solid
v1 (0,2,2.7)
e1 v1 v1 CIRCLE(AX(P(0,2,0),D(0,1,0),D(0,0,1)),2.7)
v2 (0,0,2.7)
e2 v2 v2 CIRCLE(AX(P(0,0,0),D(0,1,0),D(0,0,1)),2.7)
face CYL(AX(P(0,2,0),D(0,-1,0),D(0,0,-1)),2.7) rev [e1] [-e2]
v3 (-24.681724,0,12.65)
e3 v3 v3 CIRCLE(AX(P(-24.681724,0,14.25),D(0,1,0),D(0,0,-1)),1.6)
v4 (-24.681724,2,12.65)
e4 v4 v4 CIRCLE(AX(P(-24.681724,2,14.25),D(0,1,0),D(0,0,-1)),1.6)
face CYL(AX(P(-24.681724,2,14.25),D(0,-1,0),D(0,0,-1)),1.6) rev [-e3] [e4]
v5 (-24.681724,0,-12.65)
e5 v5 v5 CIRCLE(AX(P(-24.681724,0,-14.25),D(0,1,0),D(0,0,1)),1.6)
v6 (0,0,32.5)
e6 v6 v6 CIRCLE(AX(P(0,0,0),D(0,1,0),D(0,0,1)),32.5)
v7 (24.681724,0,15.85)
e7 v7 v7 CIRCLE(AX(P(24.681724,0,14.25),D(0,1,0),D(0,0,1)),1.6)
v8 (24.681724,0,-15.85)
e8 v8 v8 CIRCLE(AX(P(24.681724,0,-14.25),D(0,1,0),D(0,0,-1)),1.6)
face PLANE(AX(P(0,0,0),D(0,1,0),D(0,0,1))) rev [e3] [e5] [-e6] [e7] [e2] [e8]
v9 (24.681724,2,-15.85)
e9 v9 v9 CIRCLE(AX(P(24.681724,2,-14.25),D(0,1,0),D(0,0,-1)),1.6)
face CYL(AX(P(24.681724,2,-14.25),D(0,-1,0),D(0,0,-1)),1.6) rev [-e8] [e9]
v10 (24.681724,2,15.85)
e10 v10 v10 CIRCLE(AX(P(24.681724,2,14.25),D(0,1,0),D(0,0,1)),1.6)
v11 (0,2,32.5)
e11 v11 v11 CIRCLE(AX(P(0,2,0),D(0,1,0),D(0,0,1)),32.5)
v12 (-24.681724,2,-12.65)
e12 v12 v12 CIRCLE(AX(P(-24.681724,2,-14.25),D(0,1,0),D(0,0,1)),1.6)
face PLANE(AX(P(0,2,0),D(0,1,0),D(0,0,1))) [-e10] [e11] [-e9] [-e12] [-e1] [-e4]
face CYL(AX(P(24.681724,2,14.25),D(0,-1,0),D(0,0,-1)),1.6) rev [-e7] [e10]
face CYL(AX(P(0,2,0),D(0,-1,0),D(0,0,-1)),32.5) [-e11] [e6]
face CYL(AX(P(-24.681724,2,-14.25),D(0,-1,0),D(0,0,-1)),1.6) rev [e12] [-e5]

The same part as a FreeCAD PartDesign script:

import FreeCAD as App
import Part
import Sketcher
from FreeCAD import Vector

doc = App.newDocument("Part")
body = doc.addObject("PartDesign::Body", "Body")

# Sketch on XZ plane
sketch1 = doc.addObject("Sketcher::SketchObject", "Sketch")
body.addObject(sketch1)
sketch1.AttachmentSupport = (doc.XZ_Plane, [""])
sketch1.MapMode = "FlatFace"
sketch1.addGeometry([
    Part.Circle(Vector(0, 0, 0), Vector(0, 0, 1), 32.5),  # 0
    Part.Circle(Vector(-24.7, -14.2, 0), Vector(0, 0, 1), 1.6),  # 1
    Part.Circle(Vector(-24.7, 14.2, 0), Vector(0, 0, 1), 1.6),  # 2
    Part.Circle(Vector(24.7, -14.2, 0), Vector(0, 0, 1), 1.6),  # 3
    Part.Circle(Vector(0, 0, 0), Vector(0, 0, 1), 2.7),  # 4
    Part.Circle(Vector(24.7, 14.2, 0), Vector(0, 0, 1), 1.6),  # 5
], False)
sketch1.addConstraint([
    Sketcher.Constraint("Coincident", 0, 3, -1, 1),
    Sketcher.Constraint("Coincident", 4, 3, -1, 1),
    Sketcher.Constraint("Equal", 1, 2),
    Sketcher.Constraint("Equal", 2, 3),
    Sketcher.Constraint("Equal", 3, 5),
    Sketcher.Constraint("Symmetric", 2, 3, 3, 3, -1, 1),
    Sketcher.Constraint("Symmetric", 1, 3, 5, 3, -1, 1),
    Sketcher.Constraint("Symmetric", 1, 3, 3, 3, -2),
    Sketcher.Constraint("Diameter", 0, 65.0),
    Sketcher.Constraint("Diameter", 1, 3.2),
    Sketcher.Constraint("Diameter", 4, 5.4),
    Sketcher.Constraint("DistanceY", 1, 3, 2, 3, 28.5),
    Sketcher.Constraint("DistanceX", 1, 3, 3, 3, 49.363448),
])
pad1 = doc.addObject("PartDesign::Pad", "Pad")
body.addObject(pad1)
pad1.Profile = sketch1
pad1.Length = 2
pad1.Reversed = True

doc.recompute()
